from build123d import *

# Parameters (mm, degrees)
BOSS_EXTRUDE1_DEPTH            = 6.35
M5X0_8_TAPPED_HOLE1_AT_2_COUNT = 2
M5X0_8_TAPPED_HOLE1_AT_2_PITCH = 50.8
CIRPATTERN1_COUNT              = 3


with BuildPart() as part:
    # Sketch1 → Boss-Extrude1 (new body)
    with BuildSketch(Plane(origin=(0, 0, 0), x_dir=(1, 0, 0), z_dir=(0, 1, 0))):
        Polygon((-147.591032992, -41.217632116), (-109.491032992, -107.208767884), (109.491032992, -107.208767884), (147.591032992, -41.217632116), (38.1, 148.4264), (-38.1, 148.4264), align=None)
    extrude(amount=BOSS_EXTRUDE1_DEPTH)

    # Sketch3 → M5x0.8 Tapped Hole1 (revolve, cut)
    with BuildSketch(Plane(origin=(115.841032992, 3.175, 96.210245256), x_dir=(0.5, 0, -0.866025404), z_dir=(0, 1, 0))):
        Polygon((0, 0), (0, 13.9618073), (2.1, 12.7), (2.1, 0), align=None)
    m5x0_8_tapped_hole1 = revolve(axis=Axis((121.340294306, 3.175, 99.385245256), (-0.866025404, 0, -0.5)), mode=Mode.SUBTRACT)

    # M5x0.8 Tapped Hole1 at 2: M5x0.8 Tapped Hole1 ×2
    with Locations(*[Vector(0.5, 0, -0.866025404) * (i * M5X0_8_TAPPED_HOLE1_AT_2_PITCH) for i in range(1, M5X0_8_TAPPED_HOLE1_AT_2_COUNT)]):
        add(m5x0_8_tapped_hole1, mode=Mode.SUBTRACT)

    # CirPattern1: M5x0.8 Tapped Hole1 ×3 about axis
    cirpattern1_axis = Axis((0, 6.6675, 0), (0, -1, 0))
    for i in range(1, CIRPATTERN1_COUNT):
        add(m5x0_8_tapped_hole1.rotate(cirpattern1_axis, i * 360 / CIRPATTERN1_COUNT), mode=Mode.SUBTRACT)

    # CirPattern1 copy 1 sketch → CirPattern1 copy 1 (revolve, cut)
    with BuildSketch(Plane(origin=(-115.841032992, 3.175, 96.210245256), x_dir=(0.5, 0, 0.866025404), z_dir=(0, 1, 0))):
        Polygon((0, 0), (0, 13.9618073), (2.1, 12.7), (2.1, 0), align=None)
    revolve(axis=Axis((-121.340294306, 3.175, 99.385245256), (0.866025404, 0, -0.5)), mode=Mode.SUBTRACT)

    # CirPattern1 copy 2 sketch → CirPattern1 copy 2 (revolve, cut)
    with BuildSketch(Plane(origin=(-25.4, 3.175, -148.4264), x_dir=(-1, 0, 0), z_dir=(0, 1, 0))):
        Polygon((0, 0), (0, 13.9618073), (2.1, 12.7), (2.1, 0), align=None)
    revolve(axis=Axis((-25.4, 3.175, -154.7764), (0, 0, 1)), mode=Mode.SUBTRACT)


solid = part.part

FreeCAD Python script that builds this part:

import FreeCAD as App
import Part
import Sketcher
from FreeCAD import Vector
Q = App.Units.Quantity

doc = App.newDocument("Part")
body = doc.addObject("PartDesign::Body", "Body")

# Sketch on XZ plane
sketch1 = doc.addObject("Sketcher::SketchObject", "Sketch")
body.addObject(sketch1)
sketch1.AttachmentSupport = (doc.XZ_Plane, [""])
sketch1.MapMode = "FlatFace"
sketch1.addGeometry([
    Part.LineSegment(Vector(-148, 41, 0), Vector(-109, 107, 0)),  # 0
    Part.LineSegment(Vector(-109, 107, 0), Vector(109, 107, 0)),  # 1
    Part.LineSegment(Vector(109, 107, 0), Vector(148, 41, 0)),  # 2
    Part.LineSegment(Vector(148, 41, 0), Vector(38, -148, 0)),  # 3
    Part.LineSegment(Vector(38, -148, 0), Vector(-38, -148, 0)),  # 4
    Part.LineSegment(Vector(-38, -148, 0), Vector(-148, 41, 0)),  # 5
], False)
sketch1.addConstraint([
    Sketcher.Constraint("Coincident", 0, 2, 1, 1),
    Sketcher.Constraint("Coincident", 1, 2, 2, 1),
    Sketcher.Constraint("Coincident", 2, 2, 3, 1),
    Sketcher.Constraint("Coincident", 3, 2, 4, 1),
    Sketcher.Constraint("Coincident", 4, 2, 5, 1),
    Sketcher.Constraint("Coincident", 5, 2, 0, 1),
    Sketcher.Constraint("Horizontal", 1),
    Sketcher.Constraint("Horizontal", 4),
    Sketcher.Constraint("Symmetric", 2, 2, 5, 2, -2),
    Sketcher.Constraint("Parallel", 0, 3),
    Sketcher.Constraint("Parallel", 2, 5),
    Sketcher.Constraint("Equal", 0, 2),
    Sketcher.Constraint("DistanceX", 4, 2, 4, 1, Q("3 in")),
    Sketcher.Constraint("Distance", 0, Q("3 in")),
    Sketcher.Constraint("Angle", 0, Q("60 deg")),
    Sketcher.Constraint("DistanceY", 3, 2, -1, 1, Q("148.4264 mm")),
    Sketcher.Constraint("DistanceX", 1, 1, 1, 2, Q("218.982066 mm")),
])
pad1 = doc.addObject("PartDesign::Pad", "Pad")
body.addObject(pad1)
pad1.Profile = sketch1
pad1.Length = Q("0.25 in")
pad1.Reversed = True

# Sketch on XZ plane
sketch2 = doc.addObject("Sketcher::SketchObject", "Sketch001")
body.addObject(sketch2)
sketch2.AttachmentSupport = (doc.XZ_Plane, [""])
sketch2.MapMode = "FlatFace"
sketch2.AttachmentOffset = App.Placement(Vector(0, 0, -0.125 * 25.4), App.Rotation())
sketch2.addGeometry([
    Part.LineSegment(Vector(103.7, 89.2, 0), Vector(115.8, 96.2, 0)),
    Part.LineSegment(Vector(115.8, 96.2, 0), Vector(116.9, 94.4, 0)),
    Part.LineSegment(Vector(116.9, 94.4, 0), Vector(105.9, 88, 0)),
    Part.LineSegment(Vector(105.9, 88, 0), Vector(103.7, 89.2, 0)),
], False)
sketch2.addGeometry(Part.LineSegment(Vector(115.8, 96.2, 0), Vector(103.7, 89.2, 0)), True)  # axis
sketch2.addConstraint([
    Sketcher.Constraint("Coincident", 0, 2, 1, 1),
    Sketcher.Constraint("Coincident", 1, 2, 2, 1),
    Sketcher.Constraint("Coincident", 2, 2, 3, 1),
    Sketcher.Constraint("Coincident", 3, 2, 0, 1),
    Sketcher.Constraint("Coincident", 4, 1, 0, 2),
    Sketcher.Constraint("Coincident", 4, 2, 3, 2),
    Sketcher.Constraint("Perpendicular", 0, 1),
    Sketcher.Constraint("Perpendicular", 1, 2),
    Sketcher.Constraint("Angle", 0, Q("30 deg")),
    Sketcher.Constraint("Angle", 3, Q("151 deg")),
    Sketcher.Constraint("Distance", 2, Q("0.5 in")),
    Sketcher.Constraint("Distance", 1, Q("2.1 mm")),
    Sketcher.Constraint("DistanceY", -1, 1, 1, 2, Q("94.391592 mm")),
    Sketcher.Constraint("DistanceX", -1, 1, 2, 2, Q("105.89251 mm")),
])
groove = doc.addObject("PartDesign::Groove", "Groove")
body.addObject(groove)
groove.Profile = sketch2
groove.ReferenceAxis = (sketch2, ["Axis0"])
groove.Angle = 360
doc.recompute()

datumline = doc.addObject("PartDesign::Line", "DatumLine")
body.addObject(datumline)
datumline.Placement = App.Placement(Vector(0, 0, 0), App.Rotation(Vector(0, 0, 1), Vector(0.5, 0, -0.866025404)))
linearpattern = doc.addObject("PartDesign::LinearPattern", "LinearPattern")
body.addObject(linearpattern)
linearpattern.Originals = [groove]
linearpattern.Direction = (datumline, [""])
linearpattern.Mode = "offset"
linearpattern.Offset = Q("2 in")
linearpattern.Occurrences = 2
body.Tip = linearpattern
doc.recompute()

polarpattern = doc.addObject("PartDesign::PolarPattern", "PolarPattern")
body.addObject(polarpattern)
polarpattern.Originals = [groove]
polarpattern.Axis = (doc.Y_Axis, [""])
polarpattern.Angle = 360
polarpattern.Occurrences = 3
body.Tip = polarpattern

# Sketch on XZ plane
sketch3 = doc.addObject("Sketcher::SketchObject", "Sketch002")
body.addObject(sketch3)
sketch3.AttachmentSupport = (doc.XZ_Plane, [""])
sketch3.MapMode = "FlatFace"
sketch3.AttachmentOffset = App.Placement(Vector(0, 0, -0.125 * 25.4), App.Rotation())
sketch3.addGeometry([
    Part.LineSegment(Vector(-103.7, 89.2, 0), Vector(-115.8, 96.2, 0)),
    Part.LineSegment(Vector(-115.8, 96.2, 0), Vector(-114.8, 98, 0)),
    Part.LineSegment(Vector(-114.8, 98, 0), Vector(-103.8, 91.7, 0)),
    Part.LineSegment(Vector(-103.8, 91.7, 0), Vector(-103.7, 89.2, 0)),
], False)
sketch3.addGeometry(Part.LineSegment(Vector(-115.8, 96.2, 0), Vector(-103.7, 89.2, 0)), True)  # axis
sketch3.addConstraint([
    Sketcher.Constraint("Coincident", 0, 2, 1, 1),
    Sketcher.Constraint("Coincident", 1, 2, 2, 1),
    Sketcher.Constraint("Coincident", 2, 2, 3, 1),
    Sketcher.Constraint("Coincident", 3, 2, 0, 1),
    Sketcher.Constraint("Coincident", 4, 1, 0, 2),
    Sketcher.Constraint("Coincident", 4, 2, 3, 2),
    Sketcher.Constraint("Perpendicular", 0, 1),
    Sketcher.Constraint("Perpendicular", 1, 2),
    Sketcher.Constraint("Angle", 0, Q("150 deg")),
    Sketcher.Constraint("Angle", 3, Q("-89 deg")),
    Sketcher.Constraint("Distance", 2, Q("0.5 in")),
    Sketcher.Constraint("Distance", 1, Q("2.1 mm")),
    Sketcher.Constraint("DistanceY", -1, 1, 1, 2, Q("98.028899 mm")),
    Sketcher.Constraint("DistanceX", 2, 2, -1, 1, Q("103.79251 mm")),
])
groove2 = doc.addObject("PartDesign::Groove", "Groove001")
body.addObject(groove2)
groove2.Profile = sketch3
groove2.ReferenceAxis = (sketch3, ["Axis0"])
groove2.Angle = 360

# Sketch on XZ plane
sketch4 = doc.addObject("Sketcher::SketchObject", "Sketch003")
body.addObject(sketch4)
sketch4.AttachmentSupport = (doc.XZ_Plane, [""])
sketch4.MapMode = "FlatFace"
sketch4.AttachmentOffset = App.Placement(Vector(0, 0, -0.125 * 25.4), App.Rotation())
sketch4.addGeometry([
    Part.LineSegment(Vector(-25.4, -134.5, 0), Vector(-25.4, -148.4, 0)),
    Part.LineSegment(Vector(-25.4, -148.4, 0), Vector(-27.5, -148.4, 0)),
    Part.LineSegment(Vector(-27.5, -148.4, 0), Vector(-27.5, -135.7, 0)),
    Part.LineSegment(Vector(-27.5, -135.7, 0), Vector(-25.4, -134.5, 0)),
], False)
sketch4.addGeometry(Part.LineSegment(Vector(-25.4, -148.4, 0), Vector(-25.4, -134.5, 0)), True)  # axis
sketch4.addConstraint([
    Sketcher.Constraint("Coincident", 0, 2, 1, 1),
    Sketcher.Constraint("Coincident", 1, 2, 2, 1),
    Sketcher.Constraint("Coincident", 2, 2, 3, 1),
    Sketcher.Constraint("Coincident", 3, 2, 0, 1),
    Sketcher.Constraint("Vertical", 0),
    Sketcher.Constraint("Horizontal", 1),
    Sketcher.Constraint("Vertical", 2),
    Sketcher.Constraint("Vertical", 4),
    Sketcher.Constraint("Coincident", 4, 1, 0, 2),
    Sketcher.Constraint("Equal", 0, 4),
    Sketcher.Constraint("DistanceY", 2, 1, 2, 2, Q("0.5 in")),
    Sketcher.Constraint("DistanceX", 0, 2, -1, 1, Q("1 in")),
    Sketcher.Constraint("Angle", 3, Q("31 deg")),
    Sketcher.Constraint("DistanceX", 1, 2, 1, 1, Q("2.1 mm")),
    Sketcher.Constraint("DistanceY", 0, 2, -1, 1, Q("148.4264 mm")),
])
groove3 = doc.addObject("PartDesign::Groove", "Groove002")
body.addObject(groove3)
groove3.Profile = sketch4
groove3.ReferenceAxis = (sketch4, ["Axis0"])
groove3.Angle = 360

doc.recompute()
